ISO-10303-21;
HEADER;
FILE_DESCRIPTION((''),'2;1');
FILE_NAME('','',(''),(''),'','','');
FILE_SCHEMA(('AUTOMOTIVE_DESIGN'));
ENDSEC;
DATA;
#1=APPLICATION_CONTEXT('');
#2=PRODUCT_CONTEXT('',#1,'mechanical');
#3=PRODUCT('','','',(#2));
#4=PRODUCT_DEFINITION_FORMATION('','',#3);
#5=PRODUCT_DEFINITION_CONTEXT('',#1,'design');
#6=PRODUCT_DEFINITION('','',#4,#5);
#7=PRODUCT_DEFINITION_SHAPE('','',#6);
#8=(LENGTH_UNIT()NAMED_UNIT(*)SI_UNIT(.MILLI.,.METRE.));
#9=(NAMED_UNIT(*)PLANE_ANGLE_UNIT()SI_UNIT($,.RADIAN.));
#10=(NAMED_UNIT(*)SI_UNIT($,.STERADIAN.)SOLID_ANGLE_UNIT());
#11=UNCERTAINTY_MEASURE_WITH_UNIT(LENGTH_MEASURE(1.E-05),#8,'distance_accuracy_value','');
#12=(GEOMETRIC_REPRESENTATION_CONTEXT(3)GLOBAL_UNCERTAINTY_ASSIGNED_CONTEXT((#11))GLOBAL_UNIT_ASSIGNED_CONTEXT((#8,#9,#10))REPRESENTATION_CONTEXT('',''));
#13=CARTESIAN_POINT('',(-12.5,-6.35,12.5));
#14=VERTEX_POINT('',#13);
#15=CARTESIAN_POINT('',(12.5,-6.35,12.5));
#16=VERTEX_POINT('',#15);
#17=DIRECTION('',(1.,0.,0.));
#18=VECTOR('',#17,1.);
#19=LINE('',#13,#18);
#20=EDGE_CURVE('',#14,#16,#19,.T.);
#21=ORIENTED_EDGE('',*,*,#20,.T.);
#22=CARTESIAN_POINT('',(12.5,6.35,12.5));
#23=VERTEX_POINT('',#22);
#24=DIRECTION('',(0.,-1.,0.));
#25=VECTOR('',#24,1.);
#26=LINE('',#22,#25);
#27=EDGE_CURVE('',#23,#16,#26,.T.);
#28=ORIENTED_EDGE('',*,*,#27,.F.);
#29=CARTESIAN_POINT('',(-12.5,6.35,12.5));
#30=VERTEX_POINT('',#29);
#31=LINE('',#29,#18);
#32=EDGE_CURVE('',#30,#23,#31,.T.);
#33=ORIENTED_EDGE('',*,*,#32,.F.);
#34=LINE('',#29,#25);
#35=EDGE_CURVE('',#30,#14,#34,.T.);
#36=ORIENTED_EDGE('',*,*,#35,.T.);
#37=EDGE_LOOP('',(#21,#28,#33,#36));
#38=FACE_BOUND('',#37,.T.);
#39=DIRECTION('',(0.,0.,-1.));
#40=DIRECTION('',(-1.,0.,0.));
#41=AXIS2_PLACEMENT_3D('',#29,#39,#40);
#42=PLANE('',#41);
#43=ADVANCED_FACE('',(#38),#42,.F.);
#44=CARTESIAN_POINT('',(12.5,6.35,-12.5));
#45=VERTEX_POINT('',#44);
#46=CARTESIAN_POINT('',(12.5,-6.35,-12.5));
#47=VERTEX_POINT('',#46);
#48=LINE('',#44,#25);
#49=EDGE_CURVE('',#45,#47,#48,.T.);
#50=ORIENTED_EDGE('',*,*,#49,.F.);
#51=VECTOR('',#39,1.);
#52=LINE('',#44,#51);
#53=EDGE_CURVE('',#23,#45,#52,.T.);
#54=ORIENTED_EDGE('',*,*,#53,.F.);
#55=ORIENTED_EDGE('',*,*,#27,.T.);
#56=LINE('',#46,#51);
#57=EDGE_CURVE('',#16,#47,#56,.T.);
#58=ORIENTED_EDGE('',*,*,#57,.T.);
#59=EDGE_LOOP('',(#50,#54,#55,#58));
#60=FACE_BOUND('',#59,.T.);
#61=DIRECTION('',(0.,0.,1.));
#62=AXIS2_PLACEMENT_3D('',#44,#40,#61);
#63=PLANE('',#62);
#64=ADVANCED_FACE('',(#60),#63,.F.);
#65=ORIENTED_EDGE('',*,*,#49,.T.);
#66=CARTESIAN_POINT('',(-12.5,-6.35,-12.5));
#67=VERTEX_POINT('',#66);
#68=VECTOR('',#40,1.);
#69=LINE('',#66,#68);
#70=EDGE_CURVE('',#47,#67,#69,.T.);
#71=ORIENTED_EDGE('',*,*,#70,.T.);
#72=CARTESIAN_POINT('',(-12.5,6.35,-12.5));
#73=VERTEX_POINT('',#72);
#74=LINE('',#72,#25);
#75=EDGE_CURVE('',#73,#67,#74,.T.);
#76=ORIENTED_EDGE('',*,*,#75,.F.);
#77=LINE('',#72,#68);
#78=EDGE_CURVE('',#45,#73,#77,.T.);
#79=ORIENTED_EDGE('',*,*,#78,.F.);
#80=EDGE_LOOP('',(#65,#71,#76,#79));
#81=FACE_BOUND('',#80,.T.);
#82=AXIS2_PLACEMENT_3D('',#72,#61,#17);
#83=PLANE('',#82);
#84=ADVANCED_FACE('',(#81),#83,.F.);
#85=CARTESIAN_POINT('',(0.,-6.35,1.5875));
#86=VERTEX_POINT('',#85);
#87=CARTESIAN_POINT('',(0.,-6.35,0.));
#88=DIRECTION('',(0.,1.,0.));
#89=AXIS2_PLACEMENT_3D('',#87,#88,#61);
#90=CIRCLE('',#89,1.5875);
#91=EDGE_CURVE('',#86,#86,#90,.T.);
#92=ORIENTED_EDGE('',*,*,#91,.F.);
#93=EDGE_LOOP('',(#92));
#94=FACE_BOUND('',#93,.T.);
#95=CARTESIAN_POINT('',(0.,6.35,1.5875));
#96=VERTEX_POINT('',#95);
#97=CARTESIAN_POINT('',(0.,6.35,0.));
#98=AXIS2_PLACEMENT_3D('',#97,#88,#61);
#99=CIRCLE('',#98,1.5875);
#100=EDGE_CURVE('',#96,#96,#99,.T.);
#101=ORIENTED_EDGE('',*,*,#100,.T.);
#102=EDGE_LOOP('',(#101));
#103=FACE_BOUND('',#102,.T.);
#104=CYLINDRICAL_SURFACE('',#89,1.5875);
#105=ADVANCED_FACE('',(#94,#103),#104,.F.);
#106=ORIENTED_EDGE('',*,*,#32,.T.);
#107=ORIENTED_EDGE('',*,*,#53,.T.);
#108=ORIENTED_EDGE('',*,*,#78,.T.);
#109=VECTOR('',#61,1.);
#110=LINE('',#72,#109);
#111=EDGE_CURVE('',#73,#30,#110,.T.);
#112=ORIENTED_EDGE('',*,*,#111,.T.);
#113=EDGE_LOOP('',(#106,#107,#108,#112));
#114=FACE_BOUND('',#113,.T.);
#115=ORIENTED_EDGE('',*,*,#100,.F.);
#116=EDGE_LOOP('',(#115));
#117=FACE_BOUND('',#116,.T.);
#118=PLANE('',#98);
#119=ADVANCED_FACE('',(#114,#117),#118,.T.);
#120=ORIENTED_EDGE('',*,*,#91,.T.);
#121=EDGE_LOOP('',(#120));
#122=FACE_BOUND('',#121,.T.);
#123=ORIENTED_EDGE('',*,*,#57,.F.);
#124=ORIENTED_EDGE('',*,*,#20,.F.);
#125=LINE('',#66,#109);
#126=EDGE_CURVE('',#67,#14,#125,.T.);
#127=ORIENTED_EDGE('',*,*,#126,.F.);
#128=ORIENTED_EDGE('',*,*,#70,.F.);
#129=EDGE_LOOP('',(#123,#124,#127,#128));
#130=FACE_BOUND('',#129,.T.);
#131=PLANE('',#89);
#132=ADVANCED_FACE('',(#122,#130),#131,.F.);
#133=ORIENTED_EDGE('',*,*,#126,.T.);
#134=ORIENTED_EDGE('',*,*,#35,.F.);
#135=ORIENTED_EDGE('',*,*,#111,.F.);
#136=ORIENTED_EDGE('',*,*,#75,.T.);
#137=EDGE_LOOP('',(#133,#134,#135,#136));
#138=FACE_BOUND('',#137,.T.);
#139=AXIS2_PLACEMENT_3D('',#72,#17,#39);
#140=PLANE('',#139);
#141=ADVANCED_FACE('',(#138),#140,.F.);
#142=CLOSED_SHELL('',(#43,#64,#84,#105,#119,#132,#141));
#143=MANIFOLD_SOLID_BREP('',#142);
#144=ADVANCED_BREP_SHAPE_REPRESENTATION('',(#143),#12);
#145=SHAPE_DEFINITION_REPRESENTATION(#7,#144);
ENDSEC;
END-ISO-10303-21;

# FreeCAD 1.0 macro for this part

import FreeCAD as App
import Part
import Sketcher

V = App.Vector
Q = App.Units.Quantity

doc = App.newDocument("Part")
body = doc.addObject("PartDesign::Body", "Body")

sketch1 = body.newObject("Sketcher::SketchObject", "Sketch")
sketch1.AttachmentSupport = (doc.getObject("XZ_Plane"), [""])
sketch1.MapMode = "FlatFace"
sketch1.addGeometry([
    Part.LineSegment(V(-12, -12, 0), V(-12, 12, 0)),
    Part.LineSegment(V(-12, 12, 0), V(12, 12, 0)),
    Part.LineSegment(V(12, 12, 0), V(12, -12, 0)),
    Part.LineSegment(V(12, -12, 0), V(-12, -12, 0)),
], False)
sketch1.addConstraint([
    Sketcher.Constraint("Coincident", 0, 2, 1, 1),
    Sketcher.Constraint("Coincident", 1, 2, 2, 1),
    Sketcher.Constraint("Coincident", 2, 2, 3, 1),
    Sketcher.Constraint("Coincident", 3, 2, 0, 1),
    Sketcher.Constraint("Vertical", 0),
    Sketcher.Constraint("Horizontal", 1),
    Sketcher.Constraint("Vertical", 2),
    Sketcher.Constraint("Horizontal", 3),
    Sketcher.Constraint("Symmetric", 0, 2, 2, 2, -1, 1),
    Sketcher.Constraint("Equal", 3, 0),
    Sketcher.Constraint("DistanceX", 1, 1, 1, 2, Q("25 mm")),
])
pad1 = body.newObject("PartDesign::Pad", "Pad")
pad1.Profile = sketch1
pad1.Length = Q("0.5 in")
pad1.Midplane = True

sketch2 = body.newObject("Sketcher::SketchObject", "Sketch001")
sketch2.AttachmentSupport = (doc.getObject("XZ_Plane"), [""])
sketch2.MapMode = "FlatFace"
sketch2.AttachmentOffset = App.Placement(V(0, 0, -0.25 * 25.4), App.Rotation())
sketch2.addGeometry(Part.Circle(V(0, 0, 0), V(0, 0, 1), 1.6), False)
sketch2.addConstraint([
    Sketcher.Constraint("Coincident", 0, 3, -1, 1),
    Sketcher.Constraint("Diameter", 0, Q("0.125 in")),
])
pocket1 = body.newObject("PartDesign::Pocket", "Pocket")
pocket1.Profile = sketch2
pocket1.Type = "ThroughAll"
pocket1.Reversed = True

doc.recompute()
